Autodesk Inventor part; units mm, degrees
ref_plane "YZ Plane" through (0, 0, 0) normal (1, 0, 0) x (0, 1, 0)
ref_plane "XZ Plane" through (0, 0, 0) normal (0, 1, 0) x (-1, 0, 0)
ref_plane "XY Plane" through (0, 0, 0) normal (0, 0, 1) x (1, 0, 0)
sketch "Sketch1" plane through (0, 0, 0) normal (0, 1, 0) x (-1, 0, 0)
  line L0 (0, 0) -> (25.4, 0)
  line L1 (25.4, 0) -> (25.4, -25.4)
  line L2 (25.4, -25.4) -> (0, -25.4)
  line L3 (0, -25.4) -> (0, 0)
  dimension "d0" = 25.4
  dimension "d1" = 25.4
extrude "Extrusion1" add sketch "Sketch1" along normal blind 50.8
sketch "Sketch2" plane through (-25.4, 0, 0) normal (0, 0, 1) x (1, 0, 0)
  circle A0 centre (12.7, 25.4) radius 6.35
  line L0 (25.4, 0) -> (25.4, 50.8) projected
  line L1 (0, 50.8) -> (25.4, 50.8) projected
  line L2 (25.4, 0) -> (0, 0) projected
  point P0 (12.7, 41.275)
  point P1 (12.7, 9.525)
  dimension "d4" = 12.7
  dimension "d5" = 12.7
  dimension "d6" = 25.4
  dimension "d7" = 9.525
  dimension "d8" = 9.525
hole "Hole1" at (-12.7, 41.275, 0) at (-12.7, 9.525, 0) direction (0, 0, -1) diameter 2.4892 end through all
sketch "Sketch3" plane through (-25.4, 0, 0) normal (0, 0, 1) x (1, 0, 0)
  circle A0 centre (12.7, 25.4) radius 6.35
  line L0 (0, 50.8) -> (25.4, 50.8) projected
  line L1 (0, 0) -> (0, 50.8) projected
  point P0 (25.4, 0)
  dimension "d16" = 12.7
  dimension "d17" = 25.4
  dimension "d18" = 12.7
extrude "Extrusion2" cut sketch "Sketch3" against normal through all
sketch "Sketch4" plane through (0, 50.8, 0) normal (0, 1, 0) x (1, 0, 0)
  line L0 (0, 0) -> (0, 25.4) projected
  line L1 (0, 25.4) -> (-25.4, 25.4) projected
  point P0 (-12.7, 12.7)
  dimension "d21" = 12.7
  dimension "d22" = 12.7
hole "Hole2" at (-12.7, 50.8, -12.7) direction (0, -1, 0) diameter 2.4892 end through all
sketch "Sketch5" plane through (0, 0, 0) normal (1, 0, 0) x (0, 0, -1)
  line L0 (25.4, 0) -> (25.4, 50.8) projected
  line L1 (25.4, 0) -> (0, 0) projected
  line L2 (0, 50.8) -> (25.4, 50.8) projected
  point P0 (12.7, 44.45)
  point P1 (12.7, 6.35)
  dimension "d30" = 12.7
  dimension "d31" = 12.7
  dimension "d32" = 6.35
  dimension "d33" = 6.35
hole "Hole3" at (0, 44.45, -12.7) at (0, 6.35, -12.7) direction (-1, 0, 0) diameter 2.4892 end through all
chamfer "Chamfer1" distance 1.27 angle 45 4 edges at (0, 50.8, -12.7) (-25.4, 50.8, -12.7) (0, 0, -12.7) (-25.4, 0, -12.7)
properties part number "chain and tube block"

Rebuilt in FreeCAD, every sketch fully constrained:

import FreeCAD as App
import Part
import Sketcher
from FreeCAD import Vector
Q = App.Units.Quantity


def edges_at(feature, points):
    """Names of the edges that pass closest to the given points."""
    edges = feature.Shape.Edges
    near = lambda p: min(range(len(edges)), key=lambda i: edges[i].distToShape(Part.Vertex(*p))[0])
    return sorted({f"Edge{near(p) + 1}" for p in points})


def add_polygon(sketch, points):
    """Adds a closed chain of lines whose ends are joined by coincident constraints."""
    first, n = sketch.GeometryCount, len(points)
    for a, b in zip(points, points[1:] + points[:1]):
        sketch.addGeometry(Part.LineSegment(App.Vector(*a, 0), App.Vector(*b, 0)), False)
    for i in range(n):
        sketch.addConstraint(Sketcher.Constraint("Coincident", first + i, 2, first + (i + 1) % n, 1))

doc = App.newDocument("Part")
params = doc.addObject("Spreadsheet::Sheet", "Params")
for row, (alias, value) in enumerate([
    ("sketch1_width", "1 in"),
    ("pad1_length", "2 in"),
    ("sketch2_diameter", "0.098 in"),
    ("hole_diameter", "0.098 in"),
    ("sketch3_diameter", "0.5 in"),
    ("sketch4_diameter", "0.098 in"),
    ("hole2_diameter", "0.098 in"),
    ("sketch5_diameter", "0.098 in"),
    ("hole3_diameter", "0.098 in"),
    ("chamfer_size", "0.05 in"),
], start=1):
    params.set(f"A{row}", alias)
    params.set(f"B{row}", "=" + value)
    params.setAlias(f"B{row}", alias)

body = doc.addObject("PartDesign::Body", "Body")

sketch1 = body.newObject("Sketcher::SketchObject", "Sketch")
sketch1.AttachmentSupport = (doc.getObject("XZ_Plane"), [""])
sketch1.MapMode = "FlatFace"
add_polygon(sketch1, [(-25, 0), (0, 0), (0, -25), (-25, -25)])
sketch1.addConstraint(Sketcher.Constraint("Horizontal", 0))
sketch1.addConstraint(Sketcher.Constraint("Vertical", 1))
sketch1.addConstraint(Sketcher.Constraint("Horizontal", 2))
sketch1.addConstraint(Sketcher.Constraint("Vertical", 3))
sketch1.addConstraint(Sketcher.Constraint("Coincident", 0, 2, -1, 1))
sketch1.addConstraint(Sketcher.Constraint("Equal", 2, 1))
sketch1.addConstraint(Sketcher.Constraint("DistanceX", 0, 1, 0, 2, Q("1 in")))
sketch1.setExpression("Constraints[10]", "Params.sketch1_width")
pad1 = body.newObject("PartDesign::Pad", "Pad")
pad1.Profile = sketch1
pad1.setExpression("Length", "Params.pad1_length")
pad1.Reversed = True

sketch2 = body.newObject("Sketcher::SketchObject", "Sketch001")
sketch2.AttachmentSupport = (doc.getObject("XY_Plane"), [""])
sketch2.MapMode = "FlatFace"
sketch2.addGeometry(Part.Circle(Vector(-12.7, 41.3, 0), Vector(0, 0, 1), 1.2), False)
sketch2.addGeometry(Part.Circle(Vector(-12.7, 9.5, 0), Vector(0, 0, 1), 1.2), False)
sketch2.addConstraint(Sketcher.Constraint("Equal", 0, 1))
sketch2.addConstraint(Sketcher.Constraint("Vertical", 0, 3, 1, 3))
sketch2.addConstraint(Sketcher.Constraint("Diameter", 0, Q("0.098 in")))
sketch2.addConstraint(Sketcher.Constraint("DistanceX", 0, 3, -1, 1, Q("0.5 in")))
sketch2.addConstraint(Sketcher.Constraint("DistanceY", 1, 3, 0, 3, Q("1.25 in")))
sketch2.addConstraint(Sketcher.Constraint("DistanceY", -1, 1, 0, 3, Q("1.625 in")))
sketch2.setExpression("Constraints[2]", "Params.sketch2_diameter")
doc.recompute()
hole = body.newObject("PartDesign::Hole", "Hole")
hole.Profile = sketch2
hole.ThreadType = "None"
hole.setExpression("Diameter", "Params.hole_diameter")
hole.DepthType = "ThroughAll"

sketch3 = body.newObject("Sketcher::SketchObject", "Sketch002")
sketch3.AttachmentSupport = (doc.getObject("XY_Plane"), [""])
sketch3.MapMode = "FlatFace"
sketch3.addGeometry(Part.Circle(Vector(-13, 25, 0), Vector(0, 0, 1), 6), False)
sketch3.addConstraint(Sketcher.Constraint("Diameter", 0, Q("0.5 in")))
sketch3.addConstraint(Sketcher.Constraint("DistanceY", -1, 1, 0, 3, Q("1 in")))
sketch3.addConstraint(Sketcher.Constraint("DistanceX", 0, 3, -1, 1, Q("0.5 in")))
sketch3.setExpression("Constraints[0]", "Params.sketch3_diameter")
pocket1 = body.newObject("PartDesign::Pocket", "Pocket")
pocket1.Profile = sketch3
pocket1.Type = "ThroughAll"

sketch4 = body.newObject("Sketcher::SketchObject", "Sketch003")
sketch4.AttachmentSupport = (doc.getObject("XZ_Plane"), [""])
sketch4.MapMode = "FlatFace"
sketch4.AttachmentOffset = App.Placement(Vector(0, 0, -2 * 25.4), App.Rotation())
sketch4.addGeometry(Part.Circle(Vector(-12.7, -12.7, 0), Vector(0, 0, 1), 1.2), False)
sketch4.addConstraint(Sketcher.Constraint("Diameter", 0, Q("0.098 in")))
sketch4.addConstraint(Sketcher.Constraint("DistanceX", 0, 3, -1, 1, Q("0.5 in")))
sketch4.addConstraint(Sketcher.Constraint("DistanceY", 0, 3, -1, 1, Q("0.5 in")))
sketch4.setExpression("Constraints[0]", "Params.sketch4_diameter")
doc.recompute()
hole2 = body.newObject("PartDesign::Hole", "Hole001")
hole2.Profile = sketch4
hole2.ThreadType = "None"
hole2.setExpression("Diameter", "Params.hole2_diameter")
hole2.DepthType = "ThroughAll"
hole2.Reversed = True

sketch5 = body.newObject("Sketcher::SketchObject", "Sketch004")
sketch5.AttachmentSupport = (doc.getObject("YZ_Plane"), [""])
sketch5.MapMode = "FlatFace"
sketch5.addGeometry(Part.Circle(Vector(44.5, -12.7, 0), Vector(0, 0, 1), 1.2), False)
sketch5.addGeometry(Part.Circle(Vector(6.3, -12.7, 0), Vector(0, 0, 1), 1.2), False)
sketch5.addConstraint(Sketcher.Constraint("Equal", 0, 1))
sketch5.addConstraint(Sketcher.Constraint("Horizontal", 0, 3, 1, 3))
sketch5.addConstraint(Sketcher.Constraint("Diameter", 0, Q("0.098 in")))
sketch5.addConstraint(Sketcher.Constraint("DistanceY", 0, 3, -1, 1, Q("0.5 in")))
sketch5.addConstraint(Sketcher.Constraint("DistanceX", 1, 3, 0, 3, Q("1.5 in")))
sketch5.addConstraint(Sketcher.Constraint("DistanceX", -1, 1, 0, 3, Q("1.75 in")))
sketch5.setExpression("Constraints[2]", "Params.sketch5_diameter")
doc.recompute()
hole3 = body.newObject("PartDesign::Hole", "Hole002")
hole3.Profile = sketch5
hole3.ThreadType = "None"
hole3.setExpression("Diameter", "Params.hole3_diameter")
hole3.DepthType = "ThroughAll"
doc.recompute()

chamfer = body.newObject("PartDesign::Chamfer", "Chamfer")
chamfer.Base = (hole3, edges_at(hole3, [
    (0, 50.8, -12.7),
    (-25.4, 50.8, -12.7),
    (0, 0, -12.7),
    (-25.4, 0, -12.7),
]))
chamfer.setExpression("Size", "Params.chamfer_size")

doc.recompute()
